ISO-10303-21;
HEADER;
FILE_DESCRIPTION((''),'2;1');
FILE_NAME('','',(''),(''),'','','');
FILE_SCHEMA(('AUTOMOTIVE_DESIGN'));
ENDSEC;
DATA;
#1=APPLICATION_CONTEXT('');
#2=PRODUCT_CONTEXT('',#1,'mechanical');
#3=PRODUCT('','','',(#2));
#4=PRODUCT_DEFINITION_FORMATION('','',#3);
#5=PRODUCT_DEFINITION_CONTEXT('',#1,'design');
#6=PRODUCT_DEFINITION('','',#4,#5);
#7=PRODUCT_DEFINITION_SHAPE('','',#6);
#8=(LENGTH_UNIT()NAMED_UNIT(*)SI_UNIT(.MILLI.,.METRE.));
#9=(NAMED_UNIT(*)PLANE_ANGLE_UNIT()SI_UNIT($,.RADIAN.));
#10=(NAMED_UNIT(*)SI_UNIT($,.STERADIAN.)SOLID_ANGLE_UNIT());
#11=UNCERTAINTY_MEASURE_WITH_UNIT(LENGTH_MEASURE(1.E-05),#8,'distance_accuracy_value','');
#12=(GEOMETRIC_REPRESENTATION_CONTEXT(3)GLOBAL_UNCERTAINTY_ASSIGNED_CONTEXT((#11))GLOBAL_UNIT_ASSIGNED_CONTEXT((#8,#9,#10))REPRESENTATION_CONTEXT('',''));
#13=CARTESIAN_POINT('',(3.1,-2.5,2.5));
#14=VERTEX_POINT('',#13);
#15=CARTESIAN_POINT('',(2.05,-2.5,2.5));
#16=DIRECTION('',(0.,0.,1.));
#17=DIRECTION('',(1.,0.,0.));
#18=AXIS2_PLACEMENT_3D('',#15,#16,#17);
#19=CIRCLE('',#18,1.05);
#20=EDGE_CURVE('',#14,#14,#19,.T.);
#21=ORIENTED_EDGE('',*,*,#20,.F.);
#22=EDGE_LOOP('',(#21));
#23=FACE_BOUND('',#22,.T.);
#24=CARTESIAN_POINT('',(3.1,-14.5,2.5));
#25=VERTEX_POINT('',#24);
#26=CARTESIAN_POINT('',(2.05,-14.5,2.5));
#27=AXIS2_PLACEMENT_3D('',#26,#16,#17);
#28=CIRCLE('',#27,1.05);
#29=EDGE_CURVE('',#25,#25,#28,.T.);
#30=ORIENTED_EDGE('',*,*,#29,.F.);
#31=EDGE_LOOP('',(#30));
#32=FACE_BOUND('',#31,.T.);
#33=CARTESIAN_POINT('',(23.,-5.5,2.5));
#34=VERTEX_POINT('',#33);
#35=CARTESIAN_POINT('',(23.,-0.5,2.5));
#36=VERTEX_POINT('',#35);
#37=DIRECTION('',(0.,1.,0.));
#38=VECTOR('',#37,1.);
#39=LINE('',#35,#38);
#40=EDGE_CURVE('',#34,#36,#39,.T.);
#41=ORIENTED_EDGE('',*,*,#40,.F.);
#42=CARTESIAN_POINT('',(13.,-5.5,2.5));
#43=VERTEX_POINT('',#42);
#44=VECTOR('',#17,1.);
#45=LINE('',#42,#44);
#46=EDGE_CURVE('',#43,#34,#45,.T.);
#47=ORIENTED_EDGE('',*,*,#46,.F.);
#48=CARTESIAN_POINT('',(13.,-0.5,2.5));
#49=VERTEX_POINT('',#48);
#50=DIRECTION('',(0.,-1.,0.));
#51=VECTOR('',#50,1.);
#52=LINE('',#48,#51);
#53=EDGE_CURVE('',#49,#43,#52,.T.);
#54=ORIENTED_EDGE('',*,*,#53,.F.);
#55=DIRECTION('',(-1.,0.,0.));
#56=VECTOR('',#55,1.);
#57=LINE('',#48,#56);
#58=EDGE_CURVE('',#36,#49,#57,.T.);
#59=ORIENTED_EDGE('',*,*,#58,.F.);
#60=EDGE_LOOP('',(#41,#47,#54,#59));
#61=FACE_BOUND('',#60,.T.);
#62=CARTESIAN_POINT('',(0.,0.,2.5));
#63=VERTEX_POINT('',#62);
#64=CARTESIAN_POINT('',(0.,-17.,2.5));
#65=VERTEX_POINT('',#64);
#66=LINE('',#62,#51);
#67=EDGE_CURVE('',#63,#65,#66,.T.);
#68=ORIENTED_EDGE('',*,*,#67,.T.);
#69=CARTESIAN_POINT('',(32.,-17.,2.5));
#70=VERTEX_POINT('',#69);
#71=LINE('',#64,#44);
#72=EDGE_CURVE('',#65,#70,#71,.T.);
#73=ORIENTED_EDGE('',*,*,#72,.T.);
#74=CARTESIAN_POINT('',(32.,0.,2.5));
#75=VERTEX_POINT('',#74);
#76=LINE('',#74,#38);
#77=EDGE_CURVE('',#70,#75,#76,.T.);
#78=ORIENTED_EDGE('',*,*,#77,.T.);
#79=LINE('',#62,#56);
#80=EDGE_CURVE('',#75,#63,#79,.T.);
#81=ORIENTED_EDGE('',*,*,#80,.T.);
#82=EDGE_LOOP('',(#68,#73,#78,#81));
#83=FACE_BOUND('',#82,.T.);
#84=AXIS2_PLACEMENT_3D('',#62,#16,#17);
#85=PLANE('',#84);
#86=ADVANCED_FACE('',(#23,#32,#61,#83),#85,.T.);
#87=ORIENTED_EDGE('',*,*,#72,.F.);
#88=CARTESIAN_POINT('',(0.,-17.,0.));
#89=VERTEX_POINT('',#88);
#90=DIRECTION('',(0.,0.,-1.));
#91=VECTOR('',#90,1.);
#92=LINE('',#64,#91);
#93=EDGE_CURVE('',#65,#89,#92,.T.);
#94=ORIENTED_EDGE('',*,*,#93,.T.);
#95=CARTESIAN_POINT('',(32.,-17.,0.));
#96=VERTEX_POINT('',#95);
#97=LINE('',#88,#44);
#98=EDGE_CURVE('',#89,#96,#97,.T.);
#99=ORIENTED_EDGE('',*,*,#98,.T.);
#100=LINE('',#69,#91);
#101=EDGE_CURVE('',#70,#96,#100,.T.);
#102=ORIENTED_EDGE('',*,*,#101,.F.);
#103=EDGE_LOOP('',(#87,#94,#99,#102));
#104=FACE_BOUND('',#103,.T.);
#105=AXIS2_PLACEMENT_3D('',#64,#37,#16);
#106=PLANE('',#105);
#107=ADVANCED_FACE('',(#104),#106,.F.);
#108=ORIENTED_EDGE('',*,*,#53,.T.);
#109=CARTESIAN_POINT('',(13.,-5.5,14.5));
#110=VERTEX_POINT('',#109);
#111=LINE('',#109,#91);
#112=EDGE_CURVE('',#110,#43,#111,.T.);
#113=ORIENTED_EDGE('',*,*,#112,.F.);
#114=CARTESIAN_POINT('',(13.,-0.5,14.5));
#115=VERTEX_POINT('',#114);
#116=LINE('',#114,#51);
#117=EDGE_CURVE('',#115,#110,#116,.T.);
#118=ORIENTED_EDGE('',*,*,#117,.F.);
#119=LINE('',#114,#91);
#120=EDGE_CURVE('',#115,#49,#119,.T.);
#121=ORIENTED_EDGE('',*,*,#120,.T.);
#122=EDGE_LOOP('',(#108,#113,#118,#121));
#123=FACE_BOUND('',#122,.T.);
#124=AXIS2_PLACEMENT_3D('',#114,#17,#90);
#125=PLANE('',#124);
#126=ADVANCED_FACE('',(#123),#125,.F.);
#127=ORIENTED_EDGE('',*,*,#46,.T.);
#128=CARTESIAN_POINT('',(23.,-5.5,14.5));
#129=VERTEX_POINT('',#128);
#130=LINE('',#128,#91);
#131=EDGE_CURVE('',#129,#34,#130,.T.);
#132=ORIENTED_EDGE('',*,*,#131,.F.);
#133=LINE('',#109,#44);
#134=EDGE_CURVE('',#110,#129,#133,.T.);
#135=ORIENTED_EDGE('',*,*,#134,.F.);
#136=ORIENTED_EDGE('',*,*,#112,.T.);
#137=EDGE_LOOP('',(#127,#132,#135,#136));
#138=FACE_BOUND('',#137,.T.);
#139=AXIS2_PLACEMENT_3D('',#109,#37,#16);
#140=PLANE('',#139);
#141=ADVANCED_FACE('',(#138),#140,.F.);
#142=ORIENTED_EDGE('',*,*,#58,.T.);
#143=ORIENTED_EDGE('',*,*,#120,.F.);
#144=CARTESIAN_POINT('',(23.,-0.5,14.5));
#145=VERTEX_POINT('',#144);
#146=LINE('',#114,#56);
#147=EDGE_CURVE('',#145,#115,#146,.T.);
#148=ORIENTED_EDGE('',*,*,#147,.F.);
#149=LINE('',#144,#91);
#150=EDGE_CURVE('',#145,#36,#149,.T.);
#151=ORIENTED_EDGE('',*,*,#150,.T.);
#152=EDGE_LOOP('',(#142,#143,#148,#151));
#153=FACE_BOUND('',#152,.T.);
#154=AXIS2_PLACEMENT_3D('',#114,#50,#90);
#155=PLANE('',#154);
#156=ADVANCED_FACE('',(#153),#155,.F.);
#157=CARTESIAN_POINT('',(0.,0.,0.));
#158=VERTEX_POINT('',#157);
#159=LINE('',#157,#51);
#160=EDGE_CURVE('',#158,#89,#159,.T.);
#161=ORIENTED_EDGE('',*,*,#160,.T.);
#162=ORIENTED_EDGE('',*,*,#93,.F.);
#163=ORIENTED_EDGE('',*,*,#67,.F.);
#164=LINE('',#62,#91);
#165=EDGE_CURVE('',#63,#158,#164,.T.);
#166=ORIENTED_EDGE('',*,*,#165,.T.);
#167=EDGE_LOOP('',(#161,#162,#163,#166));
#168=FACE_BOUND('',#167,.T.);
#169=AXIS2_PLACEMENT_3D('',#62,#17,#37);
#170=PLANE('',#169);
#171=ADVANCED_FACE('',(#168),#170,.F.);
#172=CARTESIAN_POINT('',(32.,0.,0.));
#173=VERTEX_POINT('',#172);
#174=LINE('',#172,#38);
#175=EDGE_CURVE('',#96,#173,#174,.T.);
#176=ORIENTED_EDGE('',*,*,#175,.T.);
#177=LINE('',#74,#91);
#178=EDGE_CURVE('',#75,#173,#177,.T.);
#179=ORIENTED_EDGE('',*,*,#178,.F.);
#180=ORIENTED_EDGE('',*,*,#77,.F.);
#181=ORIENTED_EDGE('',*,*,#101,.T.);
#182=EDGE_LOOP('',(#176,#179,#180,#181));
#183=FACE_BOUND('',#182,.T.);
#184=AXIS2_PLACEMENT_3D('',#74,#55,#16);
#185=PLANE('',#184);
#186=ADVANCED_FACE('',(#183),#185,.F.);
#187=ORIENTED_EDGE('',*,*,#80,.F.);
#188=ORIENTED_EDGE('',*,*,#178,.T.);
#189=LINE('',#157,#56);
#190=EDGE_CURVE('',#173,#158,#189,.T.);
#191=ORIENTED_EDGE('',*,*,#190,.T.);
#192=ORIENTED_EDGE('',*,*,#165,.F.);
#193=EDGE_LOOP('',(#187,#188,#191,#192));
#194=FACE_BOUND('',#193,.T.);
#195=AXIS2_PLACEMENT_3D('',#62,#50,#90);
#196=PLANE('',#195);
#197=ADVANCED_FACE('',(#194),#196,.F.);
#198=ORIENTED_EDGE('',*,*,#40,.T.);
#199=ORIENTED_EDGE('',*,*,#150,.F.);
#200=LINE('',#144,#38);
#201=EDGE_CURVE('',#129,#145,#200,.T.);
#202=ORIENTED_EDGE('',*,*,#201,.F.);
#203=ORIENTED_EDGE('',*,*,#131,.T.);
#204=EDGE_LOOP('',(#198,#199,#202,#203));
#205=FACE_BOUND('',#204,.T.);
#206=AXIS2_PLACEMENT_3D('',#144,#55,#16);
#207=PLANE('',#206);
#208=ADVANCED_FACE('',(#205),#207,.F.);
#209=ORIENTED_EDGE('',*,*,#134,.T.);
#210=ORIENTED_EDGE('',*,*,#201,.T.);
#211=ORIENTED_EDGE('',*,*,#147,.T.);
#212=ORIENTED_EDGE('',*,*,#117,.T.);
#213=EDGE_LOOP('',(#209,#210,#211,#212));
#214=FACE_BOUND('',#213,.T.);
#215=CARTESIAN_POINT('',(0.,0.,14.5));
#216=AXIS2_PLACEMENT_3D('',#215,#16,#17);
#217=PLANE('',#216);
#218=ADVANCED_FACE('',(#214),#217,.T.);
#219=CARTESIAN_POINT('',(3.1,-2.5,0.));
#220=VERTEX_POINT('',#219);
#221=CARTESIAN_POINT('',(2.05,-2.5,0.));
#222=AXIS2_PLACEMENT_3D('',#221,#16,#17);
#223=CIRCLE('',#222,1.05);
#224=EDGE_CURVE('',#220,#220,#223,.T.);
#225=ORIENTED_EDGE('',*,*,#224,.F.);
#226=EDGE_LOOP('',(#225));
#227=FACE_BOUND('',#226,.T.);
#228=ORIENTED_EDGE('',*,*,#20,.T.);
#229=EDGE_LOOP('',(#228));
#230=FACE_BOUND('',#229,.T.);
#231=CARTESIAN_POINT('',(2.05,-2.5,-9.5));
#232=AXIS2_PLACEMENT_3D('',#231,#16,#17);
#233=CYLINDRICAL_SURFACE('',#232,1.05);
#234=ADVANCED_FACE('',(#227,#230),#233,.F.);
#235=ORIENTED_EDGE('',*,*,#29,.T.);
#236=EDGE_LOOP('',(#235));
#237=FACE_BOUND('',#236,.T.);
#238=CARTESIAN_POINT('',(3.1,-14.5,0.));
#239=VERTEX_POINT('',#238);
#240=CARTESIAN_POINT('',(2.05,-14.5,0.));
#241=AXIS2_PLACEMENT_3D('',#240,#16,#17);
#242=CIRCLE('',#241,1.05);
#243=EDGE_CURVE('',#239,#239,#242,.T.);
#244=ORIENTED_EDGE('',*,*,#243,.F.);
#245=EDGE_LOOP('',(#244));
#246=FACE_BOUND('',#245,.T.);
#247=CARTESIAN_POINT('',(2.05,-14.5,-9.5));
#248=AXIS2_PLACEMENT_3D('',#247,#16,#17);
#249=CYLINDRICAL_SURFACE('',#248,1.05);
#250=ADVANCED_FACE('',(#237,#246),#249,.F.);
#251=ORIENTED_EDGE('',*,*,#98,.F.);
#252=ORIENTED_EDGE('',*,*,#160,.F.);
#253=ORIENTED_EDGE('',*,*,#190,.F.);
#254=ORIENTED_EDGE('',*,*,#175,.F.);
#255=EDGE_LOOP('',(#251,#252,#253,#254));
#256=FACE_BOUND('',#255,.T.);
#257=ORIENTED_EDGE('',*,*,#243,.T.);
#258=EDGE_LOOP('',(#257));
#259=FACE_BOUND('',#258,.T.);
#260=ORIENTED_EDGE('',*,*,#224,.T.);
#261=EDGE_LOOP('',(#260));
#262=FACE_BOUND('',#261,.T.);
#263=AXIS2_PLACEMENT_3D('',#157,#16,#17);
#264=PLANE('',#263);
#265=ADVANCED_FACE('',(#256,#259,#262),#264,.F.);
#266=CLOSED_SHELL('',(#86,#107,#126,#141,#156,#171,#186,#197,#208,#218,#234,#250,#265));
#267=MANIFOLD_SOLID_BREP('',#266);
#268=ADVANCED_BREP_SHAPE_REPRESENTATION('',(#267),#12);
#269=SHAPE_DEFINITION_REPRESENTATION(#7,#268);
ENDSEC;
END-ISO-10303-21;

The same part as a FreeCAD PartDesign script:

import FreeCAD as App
import Part
import Sketcher
Q = App.Units.Quantity

doc = App.newDocument("Part")
body = doc.addObject("PartDesign::Body", "Body")

# Sketch on XY plane
sketch1 = doc.addObject("Sketcher::SketchObject", "Sketch")
body.addObject(sketch1)
sketch1.AttachmentSupport = (doc.XY_Plane, [""])
sketch1.MapMode = "FlatFace"
sketch1.addGeometry(Part.LineSegment(App.Vector(0, 0, 0), App.Vector(0, -17, 0)), False)
sketch1.addGeometry(Part.LineSegment(App.Vector(0, -17, 0), App.Vector(32, -17, 0)), False)
sketch1.addGeometry(Part.LineSegment(App.Vector(32, -17, 0), App.Vector(32, 0, 0)), False)
sketch1.addGeometry(Part.LineSegment(App.Vector(32, 0, 0), App.Vector(0, 0, 0)), False)
sketch1.addConstraint(Sketcher.Constraint("Coincident", 0, 2, 1, 1))
sketch1.addConstraint(Sketcher.Constraint("Coincident", 1, 2, 2, 1))
sketch1.addConstraint(Sketcher.Constraint("Coincident", 2, 2, 3, 1))
sketch1.addConstraint(Sketcher.Constraint("Coincident", 3, 2, 0, 1))
sketch1.addConstraint(Sketcher.Constraint("Vertical", 0))
sketch1.addConstraint(Sketcher.Constraint("Horizontal", 1))
sketch1.addConstraint(Sketcher.Constraint("Vertical", 2))
sketch1.addConstraint(Sketcher.Constraint("Horizontal", 3))
sketch1.addConstraint(Sketcher.Constraint("Coincident", 3, 2, -1, 1))
sketch1.addConstraint(Sketcher.Constraint("DistanceX", 1, 1, 1, 2, Q("32 mm")))
sketch1.addConstraint(Sketcher.Constraint("DistanceY", 0, 2, 0, 1, Q("17 mm")))
pad1 = doc.addObject("PartDesign::Pad", "Pad")
body.addObject(pad1)
pad1.Profile = sketch1
pad1.Length = 2.5

# Sketch on XY plane
sketch2 = doc.addObject("Sketcher::SketchObject", "Sketch001")
body.addObject(sketch2)
sketch2.AttachmentSupport = (doc.XY_Plane, [""])
sketch2.MapMode = "FlatFace"
sketch2.AttachmentOffset = App.Placement(App.Vector(0, 0, 2.5), App.Rotation())
sketch2.addGeometry(Part.LineSegment(App.Vector(13, 0, 0), App.Vector(13, -6, 0)), False)
sketch2.addGeometry(Part.LineSegment(App.Vector(13, -6, 0), App.Vector(23, -6, 0)), False)
sketch2.addGeometry(Part.LineSegment(App.Vector(23, -6, 0), App.Vector(23, 0, 0)), False)
sketch2.addGeometry(Part.LineSegment(App.Vector(23, 0, 0), App.Vector(13, 0, 0)), False)
sketch2.addConstraint(Sketcher.Constraint("Coincident", 0, 2, 1, 1))
sketch2.addConstraint(Sketcher.Constraint("Coincident", 1, 2, 2, 1))
sketch2.addConstraint(Sketcher.Constraint("Coincident", 2, 2, 3, 1))
sketch2.addConstraint(Sketcher.Constraint("Coincident", 3, 2, 0, 1))
sketch2.addConstraint(Sketcher.Constraint("Vertical", 0))
sketch2.addConstraint(Sketcher.Constraint("Horizontal", 1))
sketch2.addConstraint(Sketcher.Constraint("Vertical", 2))
sketch2.addConstraint(Sketcher.Constraint("Horizontal", 3))
sketch2.addConstraint(Sketcher.Constraint("DistanceX", 1, 1, 1, 2, Q("10 mm")))
sketch2.addConstraint(Sketcher.Constraint("DistanceY", 0, 2, 0, 1, Q("5 mm")))
sketch2.addConstraint(Sketcher.Constraint("DistanceX", -1, 1, 0, 2, Q("13 mm")))
sketch2.addConstraint(Sketcher.Constraint("DistanceY", 0, 2, -1, 1, Q("5.5 mm")))
pad2 = doc.addObject("PartDesign::Pad", "Pad001")
body.addObject(pad2)
pad2.Profile = sketch2
pad2.Length = 12

# Sketch on XY plane
sketch3 = doc.addObject("Sketcher::SketchObject", "Sketch002")
body.addObject(sketch3)
sketch3.AttachmentSupport = (doc.XY_Plane, [""])
sketch3.MapMode = "FlatFace"
sketch3.AttachmentOffset = App.Placement(App.Vector(0, 0, 2.5), App.Rotation())
sketch3.addGeometry(Part.Circle(App.Vector(2, -2.5, 0), App.Vector(0, 0, 1), 1.1), False)
sketch3.addGeometry(Part.Circle(App.Vector(2, -14.5, 0), App.Vector(0, 0, 1), 1.1), False)
sketch3.addConstraint(Sketcher.Constraint("Equal", 0, 1))
sketch3.addConstraint(Sketcher.Constraint("Vertical", 0, 3, 1, 3))
sketch3.addConstraint(Sketcher.Constraint("Diameter", 0, Q("2.1 mm")))
sketch3.addConstraint(Sketcher.Constraint("DistanceY", 1, 3, 0, 3, Q("12 mm")))
sketch3.addConstraint(Sketcher.Constraint("DistanceY", 0, 3, -1, 1, Q("2.5 mm")))
sketch3.addConstraint(Sketcher.Constraint("DistanceX", -1, 1, 0, 3, Q("2.05 mm")))
pocket1 = doc.addObject("PartDesign::Pocket", "Pocket")
body.addObject(pocket1)
pocket1.Profile = sketch3
pocket1.Length = 12

doc.recompute()
